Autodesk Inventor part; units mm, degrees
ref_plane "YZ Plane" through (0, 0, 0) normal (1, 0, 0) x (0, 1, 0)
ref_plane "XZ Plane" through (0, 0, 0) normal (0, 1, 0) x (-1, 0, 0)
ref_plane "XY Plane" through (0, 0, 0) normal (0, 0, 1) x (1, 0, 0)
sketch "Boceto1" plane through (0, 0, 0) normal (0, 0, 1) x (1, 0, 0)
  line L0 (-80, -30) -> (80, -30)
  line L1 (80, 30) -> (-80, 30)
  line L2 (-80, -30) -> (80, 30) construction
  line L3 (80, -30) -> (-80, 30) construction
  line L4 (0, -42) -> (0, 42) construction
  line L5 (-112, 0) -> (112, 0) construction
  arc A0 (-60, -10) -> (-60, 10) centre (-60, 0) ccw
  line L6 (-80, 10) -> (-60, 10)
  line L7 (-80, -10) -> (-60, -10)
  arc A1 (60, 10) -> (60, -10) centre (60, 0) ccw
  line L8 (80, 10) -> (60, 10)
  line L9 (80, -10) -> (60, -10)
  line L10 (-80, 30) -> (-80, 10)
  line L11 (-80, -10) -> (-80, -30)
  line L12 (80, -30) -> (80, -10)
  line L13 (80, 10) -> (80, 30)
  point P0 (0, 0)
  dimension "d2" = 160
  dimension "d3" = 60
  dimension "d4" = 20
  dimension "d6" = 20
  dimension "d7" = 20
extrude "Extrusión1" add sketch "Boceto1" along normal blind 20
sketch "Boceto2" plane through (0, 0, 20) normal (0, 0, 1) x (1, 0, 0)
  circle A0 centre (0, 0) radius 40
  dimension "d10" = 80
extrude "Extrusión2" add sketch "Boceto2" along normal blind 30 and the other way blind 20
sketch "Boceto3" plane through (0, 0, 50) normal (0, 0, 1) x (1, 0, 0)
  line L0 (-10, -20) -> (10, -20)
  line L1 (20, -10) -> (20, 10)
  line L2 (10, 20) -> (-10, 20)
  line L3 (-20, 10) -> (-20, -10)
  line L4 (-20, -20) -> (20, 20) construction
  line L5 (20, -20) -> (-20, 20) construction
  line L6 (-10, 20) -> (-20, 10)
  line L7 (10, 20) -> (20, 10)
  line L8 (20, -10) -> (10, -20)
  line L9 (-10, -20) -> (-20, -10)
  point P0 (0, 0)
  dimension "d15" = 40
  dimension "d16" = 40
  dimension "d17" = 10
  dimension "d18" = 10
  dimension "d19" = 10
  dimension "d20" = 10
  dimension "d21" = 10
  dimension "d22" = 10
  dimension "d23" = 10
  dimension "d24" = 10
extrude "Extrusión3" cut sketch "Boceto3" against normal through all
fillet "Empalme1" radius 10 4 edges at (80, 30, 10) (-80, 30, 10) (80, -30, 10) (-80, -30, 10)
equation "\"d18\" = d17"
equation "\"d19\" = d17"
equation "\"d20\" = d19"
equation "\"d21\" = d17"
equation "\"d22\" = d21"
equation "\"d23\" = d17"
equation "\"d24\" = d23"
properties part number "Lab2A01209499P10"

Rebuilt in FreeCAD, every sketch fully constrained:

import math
import FreeCAD as App
import Part
import Sketcher
from FreeCAD import Vector
Q = App.Units.Quantity


def edges_at(feature, points):
    """Names of the edges that pass closest to the given points."""
    edges = feature.Shape.Edges
    near = lambda p: min(range(len(edges)), key=lambda i: edges[i].distToShape(Part.Vertex(*p))[0])
    return sorted({f"Edge{near(p) + 1}" for p in points})


def add_polygon(sketch, points):
    """Adds a closed chain of lines whose ends are joined by coincident constraints."""
    first, n = sketch.GeometryCount, len(points)
    for a, b in zip(points, points[1:] + points[:1]):
        sketch.addGeometry(Part.LineSegment(App.Vector(*a, 0), App.Vector(*b, 0)), False)
    for i in range(n):
        sketch.addConstraint(Sketcher.Constraint("Coincident", first + i, 2, first + (i + 1) % n, 1))

doc = App.newDocument("Part")
body = doc.addObject("PartDesign::Body", "Body")

# Sketch on XY plane
sketch1 = body.newObject("Sketcher::SketchObject", "Sketch")
sketch1.AttachmentSupport = (doc.getObject("XY_Plane"), [""])
sketch1.MapMode = "FlatFace"
sketch1.addGeometry([
    Part.LineSegment(Vector(-80, -10, 0), Vector(-80, -30, 0)),  # 0
    Part.LineSegment(Vector(-80, -30, 0), Vector(80, -30, 0)),  # 1
    Part.LineSegment(Vector(80, -30, 0), Vector(80, -10, 0)),  # 2
    Part.LineSegment(Vector(80, -10, 0), Vector(60, -10, 0)),  # 3
    Part.ArcOfCircle(Part.Circle(Vector(60, 0, 0), Vector(0, 0, 1), 10), math.radians(90), math.radians(270)),  # 4
    Part.LineSegment(Vector(60, 10, 0), Vector(80, 10, 0)),  # 5
    Part.LineSegment(Vector(80, 10, 0), Vector(80, 30, 0)),  # 6
    Part.LineSegment(Vector(80, 30, 0), Vector(-80, 30, 0)),  # 7
    Part.LineSegment(Vector(-80, 30, 0), Vector(-80, 10, 0)),  # 8
    Part.LineSegment(Vector(-80, 10, 0), Vector(-60, 10, 0)),  # 9
    Part.ArcOfCircle(Part.Circle(Vector(-60, 0, 0), Vector(0, 0, 1), 10), math.radians(-90), math.radians(90)),  # 10
    Part.LineSegment(Vector(-60, -10, 0), Vector(-80, -10, 0)),  # 11
], False)
sketch1.addConstraint([
    Sketcher.Constraint("Coincident", 0, 2, 1, 1),
    Sketcher.Constraint("Coincident", 1, 2, 2, 1),
    Sketcher.Constraint("Coincident", 2, 2, 3, 1),
    Sketcher.Constraint("Tangent", 3, 2, 4, 2),
    Sketcher.Constraint("Tangent", 4, 1, 5, 1),
    Sketcher.Constraint("Coincident", 5, 2, 6, 1),
    Sketcher.Constraint("Coincident", 6, 2, 7, 1),
    Sketcher.Constraint("Coincident", 7, 2, 8, 1),
    Sketcher.Constraint("Coincident", 8, 2, 9, 1),
    Sketcher.Constraint("Tangent", 9, 2, 10, 2),
    Sketcher.Constraint("Tangent", 10, 1, 11, 1),
    Sketcher.Constraint("Coincident", 11, 2, 0, 1),
    Sketcher.Constraint("Vertical", 0),
    Sketcher.Constraint("Horizontal", 1),
    Sketcher.Constraint("Vertical", 2),
    Sketcher.Constraint("Horizontal", 3),
    Sketcher.Constraint("Horizontal", 5),
    Sketcher.Constraint("Vertical", 6),
    Sketcher.Constraint("Horizontal", 7),
    Sketcher.Constraint("Vertical", 8),
    Sketcher.Constraint("Horizontal", 9),
    Sketcher.Constraint("Horizontal", 11),
    Sketcher.Constraint("Equal", 4, 10),
    Sketcher.Constraint("Symmetric", 4, 3, 10, 3, -1, 1),
    Sketcher.Constraint("Symmetric", 0, 2, 6, 2, -1, 1),
    Sketcher.Constraint("Symmetric", 5, 2, 8, 2, -2),
    Sketcher.Constraint("Vertical", 2, 2, 5, 2),
    Sketcher.Constraint("Equal", 11, 0),
    Sketcher.Constraint("Radius", 4, Q("10 mm")),
    Sketcher.Constraint("DistanceX", 1, 1, 1, 2, Q("160 mm")),
    Sketcher.Constraint("DistanceX", 3, 2, 3, 1, Q("20 mm")),
])
pad1 = body.newObject("PartDesign::Pad", "Pad")
pad1.Profile = sketch1
pad1.Length = 20

# Sketch on XY plane
sketch2 = body.newObject("Sketcher::SketchObject", "Sketch001")
sketch2.AttachmentSupport = (doc.getObject("XY_Plane"), [""])
sketch2.MapMode = "FlatFace"
sketch2.AttachmentOffset = App.Placement(Vector(0, 0, 20), App.Rotation())
sketch2.addGeometry(Part.Circle(Vector(0, 0, 0), Vector(0, 0, 1), 40), False)
sketch2.addConstraint([
    Sketcher.Constraint("Coincident", 0, 3, -1, 1),
    Sketcher.Constraint("Diameter", 0, Q("80 mm")),
])
pad2 = body.newObject("PartDesign::Pad", "Pad001")
pad2.Profile = sketch2
pad2.Type = "TwoLengths"
pad2.Length = 30
pad2.Length2 = 20

# Sketch on XY plane
sketch3 = body.newObject("Sketcher::SketchObject", "Sketch002")
sketch3.AttachmentSupport = (doc.getObject("XY_Plane"), [""])
sketch3.MapMode = "FlatFace"
sketch3.AttachmentOffset = App.Placement(Vector(0, 0, 50), App.Rotation())
add_polygon(sketch3, [(-20, -10), (-10, -20), (10, -20), (20, -10), (20, 10), (10, 20), (-10, 20), (-20, 10)])  # lines 0-7
sketch3.addConstraint([
    Sketcher.Constraint("Horizontal", 1),
    Sketcher.Constraint("Vertical", 3),
    Sketcher.Constraint("Horizontal", 5),
    Sketcher.Constraint("Vertical", 7),
    Sketcher.Constraint("Symmetric", 0, 2, 4, 2, -1, 1),
    Sketcher.Constraint("Symmetric", 2, 2, 6, 2, -1, 1),
    Sketcher.Constraint("Perpendicular", 0, 2),
    Sketcher.Constraint("Perpendicular", 2, 4),
    Sketcher.Constraint("Perpendicular", 4, 6),
    Sketcher.Constraint("Horizontal", 3, 2, 6, 2),
    Sketcher.Constraint("Vertical", 1, 2, 4, 2),
    Sketcher.Constraint("Equal", 5, 3),
    Sketcher.Constraint("DistanceX", 0, 2, -1, 1, Q("10 mm")),
    Sketcher.Constraint("DistanceX", 1, 2, 2, 2, Q("10 mm")),
])
pocket1 = body.newObject("PartDesign::Pocket", "Pocket")
pocket1.Profile = sketch3
pocket1.Type = "ThroughAll"
doc.recompute()

fillet = body.newObject("PartDesign::Fillet", "Fillet")
fillet.Base = (pocket1, edges_at(pocket1, [
    (80, 30, 10),
    (-80, 30, 10),
    (80, -30, 10),
    (-80, -30, 10),
]))
fillet.Radius = 10

doc.recompute()
